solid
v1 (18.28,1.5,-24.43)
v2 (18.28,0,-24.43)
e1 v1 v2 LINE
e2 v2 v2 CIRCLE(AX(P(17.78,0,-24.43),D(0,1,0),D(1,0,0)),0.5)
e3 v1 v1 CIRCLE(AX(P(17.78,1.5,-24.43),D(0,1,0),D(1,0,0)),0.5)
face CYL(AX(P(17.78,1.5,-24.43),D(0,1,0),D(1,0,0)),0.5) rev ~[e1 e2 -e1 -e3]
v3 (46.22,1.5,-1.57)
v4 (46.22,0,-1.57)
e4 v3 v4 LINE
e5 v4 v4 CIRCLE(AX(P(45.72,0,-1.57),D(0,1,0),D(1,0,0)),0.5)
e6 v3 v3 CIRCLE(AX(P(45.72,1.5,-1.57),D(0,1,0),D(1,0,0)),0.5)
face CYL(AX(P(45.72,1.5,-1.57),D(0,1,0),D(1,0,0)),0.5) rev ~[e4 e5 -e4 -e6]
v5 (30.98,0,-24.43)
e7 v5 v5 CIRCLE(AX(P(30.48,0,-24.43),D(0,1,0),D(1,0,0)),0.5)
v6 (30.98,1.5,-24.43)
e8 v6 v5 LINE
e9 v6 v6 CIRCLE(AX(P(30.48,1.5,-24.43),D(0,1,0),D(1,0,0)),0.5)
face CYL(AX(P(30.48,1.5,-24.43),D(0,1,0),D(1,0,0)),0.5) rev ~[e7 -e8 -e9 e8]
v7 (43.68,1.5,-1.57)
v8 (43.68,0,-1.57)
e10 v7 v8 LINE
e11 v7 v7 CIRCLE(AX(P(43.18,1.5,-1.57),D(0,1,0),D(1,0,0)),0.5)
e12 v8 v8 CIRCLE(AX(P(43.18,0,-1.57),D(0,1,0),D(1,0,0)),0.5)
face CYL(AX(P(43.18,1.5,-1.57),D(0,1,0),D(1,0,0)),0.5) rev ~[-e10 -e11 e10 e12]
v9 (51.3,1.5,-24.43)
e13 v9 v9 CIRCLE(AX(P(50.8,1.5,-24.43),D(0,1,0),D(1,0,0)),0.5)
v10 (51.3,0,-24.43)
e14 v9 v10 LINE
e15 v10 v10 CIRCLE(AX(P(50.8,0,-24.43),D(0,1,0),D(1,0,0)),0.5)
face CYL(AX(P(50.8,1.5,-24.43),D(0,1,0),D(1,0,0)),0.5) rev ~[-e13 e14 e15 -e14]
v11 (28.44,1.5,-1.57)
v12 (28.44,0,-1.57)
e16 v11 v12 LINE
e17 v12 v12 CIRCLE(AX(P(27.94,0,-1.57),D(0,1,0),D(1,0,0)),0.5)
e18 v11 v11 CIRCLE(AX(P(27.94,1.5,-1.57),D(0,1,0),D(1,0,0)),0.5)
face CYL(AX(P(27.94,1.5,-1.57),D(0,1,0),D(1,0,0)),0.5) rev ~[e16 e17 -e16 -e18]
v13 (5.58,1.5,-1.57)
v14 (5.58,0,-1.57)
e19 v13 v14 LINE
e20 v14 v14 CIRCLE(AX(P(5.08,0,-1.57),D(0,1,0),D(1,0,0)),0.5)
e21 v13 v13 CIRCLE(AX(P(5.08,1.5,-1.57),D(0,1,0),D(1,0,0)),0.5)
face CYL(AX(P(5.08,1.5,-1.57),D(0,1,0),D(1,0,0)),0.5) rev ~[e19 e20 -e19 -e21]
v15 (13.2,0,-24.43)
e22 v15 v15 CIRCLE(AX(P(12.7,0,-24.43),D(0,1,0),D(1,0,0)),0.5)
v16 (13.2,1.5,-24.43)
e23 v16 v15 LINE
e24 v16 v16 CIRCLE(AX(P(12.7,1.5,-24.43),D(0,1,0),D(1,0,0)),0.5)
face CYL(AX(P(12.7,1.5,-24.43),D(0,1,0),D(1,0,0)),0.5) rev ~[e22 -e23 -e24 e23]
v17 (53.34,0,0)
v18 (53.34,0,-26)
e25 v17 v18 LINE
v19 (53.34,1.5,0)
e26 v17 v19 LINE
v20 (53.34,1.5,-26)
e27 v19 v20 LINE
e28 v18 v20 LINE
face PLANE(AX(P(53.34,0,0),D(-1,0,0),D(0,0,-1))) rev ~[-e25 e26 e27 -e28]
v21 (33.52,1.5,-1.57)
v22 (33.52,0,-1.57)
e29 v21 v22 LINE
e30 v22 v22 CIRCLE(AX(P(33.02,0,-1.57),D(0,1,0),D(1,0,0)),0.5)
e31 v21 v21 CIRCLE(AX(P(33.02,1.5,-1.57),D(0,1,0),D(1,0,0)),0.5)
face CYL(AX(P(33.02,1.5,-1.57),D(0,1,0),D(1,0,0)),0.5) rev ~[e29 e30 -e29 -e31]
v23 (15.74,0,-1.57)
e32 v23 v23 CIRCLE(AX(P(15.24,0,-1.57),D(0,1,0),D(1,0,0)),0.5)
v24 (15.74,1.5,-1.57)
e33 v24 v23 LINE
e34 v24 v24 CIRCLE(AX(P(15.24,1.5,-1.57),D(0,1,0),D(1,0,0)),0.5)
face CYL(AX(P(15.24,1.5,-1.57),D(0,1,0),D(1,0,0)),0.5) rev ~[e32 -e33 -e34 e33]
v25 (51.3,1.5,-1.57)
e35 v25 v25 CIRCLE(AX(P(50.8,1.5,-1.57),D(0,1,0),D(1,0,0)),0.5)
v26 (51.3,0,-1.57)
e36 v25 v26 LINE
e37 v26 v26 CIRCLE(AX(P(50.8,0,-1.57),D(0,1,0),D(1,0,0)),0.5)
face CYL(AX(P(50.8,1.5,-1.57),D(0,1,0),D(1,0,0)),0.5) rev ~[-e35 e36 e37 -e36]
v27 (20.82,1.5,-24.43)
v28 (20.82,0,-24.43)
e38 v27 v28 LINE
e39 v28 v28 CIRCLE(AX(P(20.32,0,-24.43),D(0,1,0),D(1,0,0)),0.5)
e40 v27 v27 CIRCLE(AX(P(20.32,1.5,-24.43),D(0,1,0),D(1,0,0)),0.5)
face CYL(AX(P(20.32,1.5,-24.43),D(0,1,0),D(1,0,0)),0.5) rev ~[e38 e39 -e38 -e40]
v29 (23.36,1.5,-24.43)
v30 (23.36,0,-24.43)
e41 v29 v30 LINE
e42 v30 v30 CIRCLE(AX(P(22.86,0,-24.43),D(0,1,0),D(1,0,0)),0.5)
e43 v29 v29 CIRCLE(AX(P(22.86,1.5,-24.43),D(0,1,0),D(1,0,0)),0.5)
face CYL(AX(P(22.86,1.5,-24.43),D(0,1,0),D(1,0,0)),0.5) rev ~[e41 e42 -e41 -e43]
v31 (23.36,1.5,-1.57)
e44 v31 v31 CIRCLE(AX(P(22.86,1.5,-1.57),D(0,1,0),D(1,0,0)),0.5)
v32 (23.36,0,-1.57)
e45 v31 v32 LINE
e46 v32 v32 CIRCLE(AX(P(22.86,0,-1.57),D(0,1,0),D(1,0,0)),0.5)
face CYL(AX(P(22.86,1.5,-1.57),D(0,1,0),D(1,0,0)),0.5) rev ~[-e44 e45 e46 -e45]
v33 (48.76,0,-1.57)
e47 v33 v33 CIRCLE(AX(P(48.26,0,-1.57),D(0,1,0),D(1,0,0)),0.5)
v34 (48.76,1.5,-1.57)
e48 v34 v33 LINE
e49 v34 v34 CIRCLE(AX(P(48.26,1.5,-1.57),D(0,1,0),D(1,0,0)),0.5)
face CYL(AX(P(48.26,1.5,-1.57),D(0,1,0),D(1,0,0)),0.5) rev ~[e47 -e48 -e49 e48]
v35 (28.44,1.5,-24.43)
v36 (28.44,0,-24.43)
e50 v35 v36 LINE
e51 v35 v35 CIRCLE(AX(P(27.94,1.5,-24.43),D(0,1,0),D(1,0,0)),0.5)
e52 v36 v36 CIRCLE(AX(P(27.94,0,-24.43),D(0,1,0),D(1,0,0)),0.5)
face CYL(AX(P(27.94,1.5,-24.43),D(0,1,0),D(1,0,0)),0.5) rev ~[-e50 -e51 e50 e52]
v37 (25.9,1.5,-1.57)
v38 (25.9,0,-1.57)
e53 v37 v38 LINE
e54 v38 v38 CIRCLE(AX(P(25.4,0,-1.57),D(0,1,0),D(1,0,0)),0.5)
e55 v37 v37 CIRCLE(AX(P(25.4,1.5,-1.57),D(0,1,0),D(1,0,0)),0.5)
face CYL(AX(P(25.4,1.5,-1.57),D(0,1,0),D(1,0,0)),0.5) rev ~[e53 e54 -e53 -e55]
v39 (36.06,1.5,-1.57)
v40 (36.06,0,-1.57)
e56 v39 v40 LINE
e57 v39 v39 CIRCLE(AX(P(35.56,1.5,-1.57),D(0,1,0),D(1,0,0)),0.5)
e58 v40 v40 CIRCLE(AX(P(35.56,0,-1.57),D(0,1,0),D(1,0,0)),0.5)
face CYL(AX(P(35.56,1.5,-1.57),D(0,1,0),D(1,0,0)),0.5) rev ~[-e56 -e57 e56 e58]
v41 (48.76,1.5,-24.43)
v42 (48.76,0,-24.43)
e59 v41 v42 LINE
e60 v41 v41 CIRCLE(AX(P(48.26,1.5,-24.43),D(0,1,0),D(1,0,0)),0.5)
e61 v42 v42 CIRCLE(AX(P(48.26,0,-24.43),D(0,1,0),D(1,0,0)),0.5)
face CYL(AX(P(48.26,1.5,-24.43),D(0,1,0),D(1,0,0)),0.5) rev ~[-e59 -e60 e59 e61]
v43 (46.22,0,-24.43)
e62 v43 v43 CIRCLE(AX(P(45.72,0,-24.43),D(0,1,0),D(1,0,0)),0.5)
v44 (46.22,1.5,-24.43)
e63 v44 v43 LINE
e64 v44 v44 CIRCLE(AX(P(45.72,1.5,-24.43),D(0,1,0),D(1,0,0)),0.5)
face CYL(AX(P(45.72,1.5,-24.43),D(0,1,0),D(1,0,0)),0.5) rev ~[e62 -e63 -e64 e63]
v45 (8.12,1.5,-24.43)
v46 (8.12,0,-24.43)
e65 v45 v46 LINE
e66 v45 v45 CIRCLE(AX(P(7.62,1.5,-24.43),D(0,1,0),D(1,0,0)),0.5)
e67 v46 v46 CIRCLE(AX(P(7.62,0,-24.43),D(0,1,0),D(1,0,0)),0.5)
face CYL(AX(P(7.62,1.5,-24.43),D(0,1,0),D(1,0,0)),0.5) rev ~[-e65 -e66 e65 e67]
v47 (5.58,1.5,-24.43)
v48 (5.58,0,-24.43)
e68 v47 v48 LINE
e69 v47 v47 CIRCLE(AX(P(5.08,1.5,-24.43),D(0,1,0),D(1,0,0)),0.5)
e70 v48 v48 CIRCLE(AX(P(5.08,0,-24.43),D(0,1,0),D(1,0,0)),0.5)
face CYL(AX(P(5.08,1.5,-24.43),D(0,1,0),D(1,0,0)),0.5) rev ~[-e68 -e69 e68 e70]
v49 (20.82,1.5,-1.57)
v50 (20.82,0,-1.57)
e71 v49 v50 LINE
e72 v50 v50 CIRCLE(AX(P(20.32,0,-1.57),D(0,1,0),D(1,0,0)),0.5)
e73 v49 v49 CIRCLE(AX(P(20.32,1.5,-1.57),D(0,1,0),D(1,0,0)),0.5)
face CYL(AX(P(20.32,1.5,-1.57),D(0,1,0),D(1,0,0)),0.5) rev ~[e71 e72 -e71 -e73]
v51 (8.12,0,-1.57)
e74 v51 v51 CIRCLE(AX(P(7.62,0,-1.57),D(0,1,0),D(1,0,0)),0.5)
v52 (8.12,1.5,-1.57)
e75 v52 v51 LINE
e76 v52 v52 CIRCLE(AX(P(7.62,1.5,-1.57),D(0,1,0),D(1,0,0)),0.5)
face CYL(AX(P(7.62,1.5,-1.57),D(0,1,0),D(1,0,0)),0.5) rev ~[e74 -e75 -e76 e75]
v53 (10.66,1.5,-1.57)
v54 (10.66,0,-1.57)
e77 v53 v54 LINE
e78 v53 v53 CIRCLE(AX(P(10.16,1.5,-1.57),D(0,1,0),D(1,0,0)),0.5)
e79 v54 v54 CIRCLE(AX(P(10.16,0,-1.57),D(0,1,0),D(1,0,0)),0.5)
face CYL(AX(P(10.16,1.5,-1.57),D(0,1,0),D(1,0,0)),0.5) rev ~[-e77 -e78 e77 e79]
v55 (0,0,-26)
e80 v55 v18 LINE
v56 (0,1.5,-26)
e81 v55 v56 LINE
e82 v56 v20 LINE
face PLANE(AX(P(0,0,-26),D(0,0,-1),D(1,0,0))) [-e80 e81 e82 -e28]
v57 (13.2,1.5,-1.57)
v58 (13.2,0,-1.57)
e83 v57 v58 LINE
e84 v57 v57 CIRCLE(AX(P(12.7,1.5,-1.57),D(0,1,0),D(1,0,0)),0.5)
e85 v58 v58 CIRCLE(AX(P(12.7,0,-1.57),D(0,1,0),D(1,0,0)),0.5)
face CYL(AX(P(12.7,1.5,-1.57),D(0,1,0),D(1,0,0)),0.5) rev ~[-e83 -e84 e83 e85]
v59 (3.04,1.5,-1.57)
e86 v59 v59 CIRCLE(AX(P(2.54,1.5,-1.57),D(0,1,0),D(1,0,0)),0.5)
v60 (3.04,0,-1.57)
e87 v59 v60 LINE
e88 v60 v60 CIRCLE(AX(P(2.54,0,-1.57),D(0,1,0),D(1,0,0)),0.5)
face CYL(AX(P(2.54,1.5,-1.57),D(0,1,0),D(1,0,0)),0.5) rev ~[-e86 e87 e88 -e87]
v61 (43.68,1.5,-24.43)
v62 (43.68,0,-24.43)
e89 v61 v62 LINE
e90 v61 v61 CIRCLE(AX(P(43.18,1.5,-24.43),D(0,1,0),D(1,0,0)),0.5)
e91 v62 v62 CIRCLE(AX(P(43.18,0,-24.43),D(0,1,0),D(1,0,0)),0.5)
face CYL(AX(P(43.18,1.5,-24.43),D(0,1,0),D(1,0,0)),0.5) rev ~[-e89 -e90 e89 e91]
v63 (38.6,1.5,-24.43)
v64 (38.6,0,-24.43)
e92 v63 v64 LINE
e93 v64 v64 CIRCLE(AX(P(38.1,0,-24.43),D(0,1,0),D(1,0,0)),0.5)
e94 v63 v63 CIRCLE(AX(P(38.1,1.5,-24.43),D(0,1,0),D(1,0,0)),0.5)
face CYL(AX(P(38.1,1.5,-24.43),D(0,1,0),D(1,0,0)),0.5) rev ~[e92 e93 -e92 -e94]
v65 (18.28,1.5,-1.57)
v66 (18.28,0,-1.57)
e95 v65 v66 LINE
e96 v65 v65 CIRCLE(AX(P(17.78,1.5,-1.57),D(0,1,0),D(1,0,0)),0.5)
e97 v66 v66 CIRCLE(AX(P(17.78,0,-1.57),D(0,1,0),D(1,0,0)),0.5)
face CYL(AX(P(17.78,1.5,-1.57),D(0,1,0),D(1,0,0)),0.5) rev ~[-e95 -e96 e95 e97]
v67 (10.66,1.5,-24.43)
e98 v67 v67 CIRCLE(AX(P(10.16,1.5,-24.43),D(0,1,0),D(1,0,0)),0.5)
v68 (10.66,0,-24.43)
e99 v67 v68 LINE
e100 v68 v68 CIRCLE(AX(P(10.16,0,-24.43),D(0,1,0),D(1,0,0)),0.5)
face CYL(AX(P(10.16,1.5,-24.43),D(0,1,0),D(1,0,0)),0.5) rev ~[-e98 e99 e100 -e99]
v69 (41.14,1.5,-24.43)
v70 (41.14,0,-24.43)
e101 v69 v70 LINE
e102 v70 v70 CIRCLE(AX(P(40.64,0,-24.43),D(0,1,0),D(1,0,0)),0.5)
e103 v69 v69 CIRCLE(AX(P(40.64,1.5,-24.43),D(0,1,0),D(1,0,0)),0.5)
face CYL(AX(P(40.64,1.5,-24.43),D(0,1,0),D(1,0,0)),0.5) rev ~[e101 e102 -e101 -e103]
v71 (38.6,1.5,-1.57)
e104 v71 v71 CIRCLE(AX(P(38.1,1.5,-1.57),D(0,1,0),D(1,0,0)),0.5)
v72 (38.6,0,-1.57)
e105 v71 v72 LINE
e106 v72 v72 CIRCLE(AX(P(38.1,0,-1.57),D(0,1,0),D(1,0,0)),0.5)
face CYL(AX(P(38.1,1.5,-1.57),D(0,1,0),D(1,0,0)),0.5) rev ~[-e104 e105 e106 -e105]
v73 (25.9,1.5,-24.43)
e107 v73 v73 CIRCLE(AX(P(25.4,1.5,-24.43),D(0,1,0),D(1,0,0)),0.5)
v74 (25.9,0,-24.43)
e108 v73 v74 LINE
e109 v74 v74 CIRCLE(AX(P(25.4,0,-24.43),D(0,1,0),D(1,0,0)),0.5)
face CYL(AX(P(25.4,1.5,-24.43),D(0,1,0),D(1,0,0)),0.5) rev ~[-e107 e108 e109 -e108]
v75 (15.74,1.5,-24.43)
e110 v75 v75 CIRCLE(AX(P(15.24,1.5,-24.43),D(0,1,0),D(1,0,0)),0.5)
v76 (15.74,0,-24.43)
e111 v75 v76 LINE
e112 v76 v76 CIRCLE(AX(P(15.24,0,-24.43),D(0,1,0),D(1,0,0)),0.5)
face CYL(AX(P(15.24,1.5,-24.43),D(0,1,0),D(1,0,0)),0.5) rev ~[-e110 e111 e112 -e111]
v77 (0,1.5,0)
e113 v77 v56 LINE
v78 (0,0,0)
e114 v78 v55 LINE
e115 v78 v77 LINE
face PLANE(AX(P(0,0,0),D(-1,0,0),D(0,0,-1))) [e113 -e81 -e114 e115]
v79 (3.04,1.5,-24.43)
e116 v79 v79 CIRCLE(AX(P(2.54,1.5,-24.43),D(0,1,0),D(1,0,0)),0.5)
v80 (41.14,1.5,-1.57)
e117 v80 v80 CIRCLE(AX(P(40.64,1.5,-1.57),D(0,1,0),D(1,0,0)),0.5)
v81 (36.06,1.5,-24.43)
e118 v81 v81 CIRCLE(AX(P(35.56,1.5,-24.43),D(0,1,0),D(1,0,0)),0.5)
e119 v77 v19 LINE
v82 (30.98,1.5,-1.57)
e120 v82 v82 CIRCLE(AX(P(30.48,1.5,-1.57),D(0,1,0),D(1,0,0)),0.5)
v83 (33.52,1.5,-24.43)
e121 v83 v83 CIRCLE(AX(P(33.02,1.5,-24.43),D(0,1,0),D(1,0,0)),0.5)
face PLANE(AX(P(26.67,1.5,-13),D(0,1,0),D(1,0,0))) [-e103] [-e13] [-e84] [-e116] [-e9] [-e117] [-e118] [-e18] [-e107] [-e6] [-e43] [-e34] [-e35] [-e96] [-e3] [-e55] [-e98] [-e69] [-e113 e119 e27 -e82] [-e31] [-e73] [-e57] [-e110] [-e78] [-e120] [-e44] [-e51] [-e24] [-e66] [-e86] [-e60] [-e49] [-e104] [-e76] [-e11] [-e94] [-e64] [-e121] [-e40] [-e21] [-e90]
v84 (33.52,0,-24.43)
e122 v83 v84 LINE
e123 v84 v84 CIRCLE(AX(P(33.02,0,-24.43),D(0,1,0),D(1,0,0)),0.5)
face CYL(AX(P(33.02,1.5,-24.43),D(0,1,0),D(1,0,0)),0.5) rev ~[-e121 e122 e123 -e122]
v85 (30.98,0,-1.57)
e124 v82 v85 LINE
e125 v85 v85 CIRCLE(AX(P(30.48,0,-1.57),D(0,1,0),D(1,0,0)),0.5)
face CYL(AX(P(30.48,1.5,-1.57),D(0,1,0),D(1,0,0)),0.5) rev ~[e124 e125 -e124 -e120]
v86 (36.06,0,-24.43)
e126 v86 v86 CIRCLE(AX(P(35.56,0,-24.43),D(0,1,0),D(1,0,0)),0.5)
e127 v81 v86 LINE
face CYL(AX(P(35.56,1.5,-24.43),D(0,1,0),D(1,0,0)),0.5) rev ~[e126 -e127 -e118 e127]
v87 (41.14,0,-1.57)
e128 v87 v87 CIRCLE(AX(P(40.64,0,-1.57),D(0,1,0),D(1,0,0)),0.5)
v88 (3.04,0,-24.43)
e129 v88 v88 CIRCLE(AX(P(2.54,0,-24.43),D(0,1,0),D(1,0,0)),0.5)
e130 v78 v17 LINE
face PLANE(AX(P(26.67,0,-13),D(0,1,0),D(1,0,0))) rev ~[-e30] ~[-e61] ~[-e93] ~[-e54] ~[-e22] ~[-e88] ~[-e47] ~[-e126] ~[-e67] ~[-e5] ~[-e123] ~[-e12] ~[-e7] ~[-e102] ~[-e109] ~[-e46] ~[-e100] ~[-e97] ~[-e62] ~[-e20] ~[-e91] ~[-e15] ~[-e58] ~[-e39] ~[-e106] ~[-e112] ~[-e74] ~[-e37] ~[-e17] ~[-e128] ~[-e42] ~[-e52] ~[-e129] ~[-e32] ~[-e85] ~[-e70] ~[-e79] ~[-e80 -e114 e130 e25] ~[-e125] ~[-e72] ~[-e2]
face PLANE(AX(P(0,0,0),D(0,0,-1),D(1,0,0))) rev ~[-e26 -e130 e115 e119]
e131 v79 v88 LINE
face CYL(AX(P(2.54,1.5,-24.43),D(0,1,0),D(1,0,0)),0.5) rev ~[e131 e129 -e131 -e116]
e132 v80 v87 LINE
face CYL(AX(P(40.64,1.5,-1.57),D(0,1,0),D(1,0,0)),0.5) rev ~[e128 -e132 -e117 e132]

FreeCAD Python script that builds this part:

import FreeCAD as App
import Part
import Sketcher


def add_polygon(sketch, points):
    """Adds a closed chain of lines whose ends are joined by coincident constraints."""
    first, n = sketch.GeometryCount, len(points)
    for a, b in zip(points, points[1:] + points[:1]):
        sketch.addGeometry(Part.LineSegment(App.Vector(*a, 0), App.Vector(*b, 0)), False)
    for i in range(n):
        sketch.addConstraint(Sketcher.Constraint("Coincident", first + i, 2, first + (i + 1) % n, 1))

doc = App.newDocument("Part")
params = doc.addObject("Spreadsheet::Sheet", "Params")
for row, (alias, value) in enumerate([
    ("sketch1_height", "26 mm"),
    ("sketch1_width", "53.34 mm"),
    ("pad1_length", "1.5 mm"),
    ("sketch2_diameter", "1 mm"),
    ("pocket1_length", "1.5 mm"),
    ("linearpattern_pitch", "2.54 mm"),
], start=1):
    params.set(f"A{row}", alias)
    params.set(f"B{row}", "=" + value)
    params.setAlias(f"B{row}", alias)

body = doc.addObject("PartDesign::Body", "Body")

# Sketch on XZ plane
sketch1 = body.newObject("Sketcher::SketchObject", "Sketch")
sketch1.AttachmentSupport = (doc.getObject("XZ_Plane"), [""])
sketch1.MapMode = "FlatFace"
add_polygon(sketch1, [(0, -26), (0, 0), (53, 0), (53, -26)])  # lines 0-3
sketch1.addConstraint(Sketcher.Constraint("Vertical", 0))
sketch1.addConstraint(Sketcher.Constraint("Horizontal", 1))
sketch1.addConstraint(Sketcher.Constraint("Vertical", 2))
sketch1.addConstraint(Sketcher.Constraint("Horizontal", 3))
sketch1.addConstraint(Sketcher.Constraint("Coincident", 0, 2, -1, 1))
sketch1.addConstraint(Sketcher.Constraint("DistanceY", 0, 1, 0, 2, 26.0))
sketch1.addConstraint(Sketcher.Constraint("DistanceX", 1, 1, 1, 2, 53.34))
sketch1.setExpression("Constraints[9]", "Params.sketch1_height")
sketch1.setExpression("Constraints[10]", "Params.sketch1_width")
pad1 = body.newObject("PartDesign::Pad", "Pad")
pad1.Profile = sketch1
pad1.setExpression("Length", "Params.pad1_length")
pad1.Reversed = True

# Sketch on XZ plane
sketch2 = body.newObject("Sketcher::SketchObject", "Sketch001")
sketch2.AttachmentSupport = (doc.getObject("XZ_Plane"), [""])
sketch2.MapMode = "FlatFace"
sketch2.AttachmentOffset = App.Placement(App.Vector(0, 0, -1.5), App.Rotation())
sketch2.addGeometry(Part.Circle(App.Vector(2.5, -1.6, 0), App.Vector(0, 0, 1), 0.5), False)
sketch2.addGeometry(Part.Circle(App.Vector(2.5, -24.4, 0), App.Vector(0, 0, 1), 0.5), False)
sketch2.addConstraint(Sketcher.Constraint("Equal", 0, 1))
sketch2.addConstraint(Sketcher.Constraint("Vertical", 0, 3, 1, 3))
sketch2.addConstraint(Sketcher.Constraint("Diameter", 0, 1.0))
sketch2.addConstraint(Sketcher.Constraint("DistanceX", -1, 1, 0, 3, 2.54))
sketch2.addConstraint(Sketcher.Constraint("DistanceY", 0, 3, -1, 1, 1.57))
sketch2.addConstraint(Sketcher.Constraint("DistanceY", 1, 3, -1, 1, 24.43))
sketch2.setExpression("Constraints[2]", "Params.sketch2_diameter")
pocket1 = body.newObject("PartDesign::Pocket", "Pocket")
pocket1.Profile = sketch2
pocket1.setExpression("Length", "Params.pocket1_length")
pocket1.Reversed = True
doc.recompute()

linearpattern = body.newObject("PartDesign::LinearPattern", "LinearPattern")
linearpattern.Originals = [pocket1]
linearpattern.Direction = (doc.getObject("X_Axis"), [""])
linearpattern.Mode = "offset"
linearpattern.setExpression("Offset", "Params.linearpattern_pitch")
linearpattern.Occurrences = 20
body.Tip = linearpattern

doc.recompute()
